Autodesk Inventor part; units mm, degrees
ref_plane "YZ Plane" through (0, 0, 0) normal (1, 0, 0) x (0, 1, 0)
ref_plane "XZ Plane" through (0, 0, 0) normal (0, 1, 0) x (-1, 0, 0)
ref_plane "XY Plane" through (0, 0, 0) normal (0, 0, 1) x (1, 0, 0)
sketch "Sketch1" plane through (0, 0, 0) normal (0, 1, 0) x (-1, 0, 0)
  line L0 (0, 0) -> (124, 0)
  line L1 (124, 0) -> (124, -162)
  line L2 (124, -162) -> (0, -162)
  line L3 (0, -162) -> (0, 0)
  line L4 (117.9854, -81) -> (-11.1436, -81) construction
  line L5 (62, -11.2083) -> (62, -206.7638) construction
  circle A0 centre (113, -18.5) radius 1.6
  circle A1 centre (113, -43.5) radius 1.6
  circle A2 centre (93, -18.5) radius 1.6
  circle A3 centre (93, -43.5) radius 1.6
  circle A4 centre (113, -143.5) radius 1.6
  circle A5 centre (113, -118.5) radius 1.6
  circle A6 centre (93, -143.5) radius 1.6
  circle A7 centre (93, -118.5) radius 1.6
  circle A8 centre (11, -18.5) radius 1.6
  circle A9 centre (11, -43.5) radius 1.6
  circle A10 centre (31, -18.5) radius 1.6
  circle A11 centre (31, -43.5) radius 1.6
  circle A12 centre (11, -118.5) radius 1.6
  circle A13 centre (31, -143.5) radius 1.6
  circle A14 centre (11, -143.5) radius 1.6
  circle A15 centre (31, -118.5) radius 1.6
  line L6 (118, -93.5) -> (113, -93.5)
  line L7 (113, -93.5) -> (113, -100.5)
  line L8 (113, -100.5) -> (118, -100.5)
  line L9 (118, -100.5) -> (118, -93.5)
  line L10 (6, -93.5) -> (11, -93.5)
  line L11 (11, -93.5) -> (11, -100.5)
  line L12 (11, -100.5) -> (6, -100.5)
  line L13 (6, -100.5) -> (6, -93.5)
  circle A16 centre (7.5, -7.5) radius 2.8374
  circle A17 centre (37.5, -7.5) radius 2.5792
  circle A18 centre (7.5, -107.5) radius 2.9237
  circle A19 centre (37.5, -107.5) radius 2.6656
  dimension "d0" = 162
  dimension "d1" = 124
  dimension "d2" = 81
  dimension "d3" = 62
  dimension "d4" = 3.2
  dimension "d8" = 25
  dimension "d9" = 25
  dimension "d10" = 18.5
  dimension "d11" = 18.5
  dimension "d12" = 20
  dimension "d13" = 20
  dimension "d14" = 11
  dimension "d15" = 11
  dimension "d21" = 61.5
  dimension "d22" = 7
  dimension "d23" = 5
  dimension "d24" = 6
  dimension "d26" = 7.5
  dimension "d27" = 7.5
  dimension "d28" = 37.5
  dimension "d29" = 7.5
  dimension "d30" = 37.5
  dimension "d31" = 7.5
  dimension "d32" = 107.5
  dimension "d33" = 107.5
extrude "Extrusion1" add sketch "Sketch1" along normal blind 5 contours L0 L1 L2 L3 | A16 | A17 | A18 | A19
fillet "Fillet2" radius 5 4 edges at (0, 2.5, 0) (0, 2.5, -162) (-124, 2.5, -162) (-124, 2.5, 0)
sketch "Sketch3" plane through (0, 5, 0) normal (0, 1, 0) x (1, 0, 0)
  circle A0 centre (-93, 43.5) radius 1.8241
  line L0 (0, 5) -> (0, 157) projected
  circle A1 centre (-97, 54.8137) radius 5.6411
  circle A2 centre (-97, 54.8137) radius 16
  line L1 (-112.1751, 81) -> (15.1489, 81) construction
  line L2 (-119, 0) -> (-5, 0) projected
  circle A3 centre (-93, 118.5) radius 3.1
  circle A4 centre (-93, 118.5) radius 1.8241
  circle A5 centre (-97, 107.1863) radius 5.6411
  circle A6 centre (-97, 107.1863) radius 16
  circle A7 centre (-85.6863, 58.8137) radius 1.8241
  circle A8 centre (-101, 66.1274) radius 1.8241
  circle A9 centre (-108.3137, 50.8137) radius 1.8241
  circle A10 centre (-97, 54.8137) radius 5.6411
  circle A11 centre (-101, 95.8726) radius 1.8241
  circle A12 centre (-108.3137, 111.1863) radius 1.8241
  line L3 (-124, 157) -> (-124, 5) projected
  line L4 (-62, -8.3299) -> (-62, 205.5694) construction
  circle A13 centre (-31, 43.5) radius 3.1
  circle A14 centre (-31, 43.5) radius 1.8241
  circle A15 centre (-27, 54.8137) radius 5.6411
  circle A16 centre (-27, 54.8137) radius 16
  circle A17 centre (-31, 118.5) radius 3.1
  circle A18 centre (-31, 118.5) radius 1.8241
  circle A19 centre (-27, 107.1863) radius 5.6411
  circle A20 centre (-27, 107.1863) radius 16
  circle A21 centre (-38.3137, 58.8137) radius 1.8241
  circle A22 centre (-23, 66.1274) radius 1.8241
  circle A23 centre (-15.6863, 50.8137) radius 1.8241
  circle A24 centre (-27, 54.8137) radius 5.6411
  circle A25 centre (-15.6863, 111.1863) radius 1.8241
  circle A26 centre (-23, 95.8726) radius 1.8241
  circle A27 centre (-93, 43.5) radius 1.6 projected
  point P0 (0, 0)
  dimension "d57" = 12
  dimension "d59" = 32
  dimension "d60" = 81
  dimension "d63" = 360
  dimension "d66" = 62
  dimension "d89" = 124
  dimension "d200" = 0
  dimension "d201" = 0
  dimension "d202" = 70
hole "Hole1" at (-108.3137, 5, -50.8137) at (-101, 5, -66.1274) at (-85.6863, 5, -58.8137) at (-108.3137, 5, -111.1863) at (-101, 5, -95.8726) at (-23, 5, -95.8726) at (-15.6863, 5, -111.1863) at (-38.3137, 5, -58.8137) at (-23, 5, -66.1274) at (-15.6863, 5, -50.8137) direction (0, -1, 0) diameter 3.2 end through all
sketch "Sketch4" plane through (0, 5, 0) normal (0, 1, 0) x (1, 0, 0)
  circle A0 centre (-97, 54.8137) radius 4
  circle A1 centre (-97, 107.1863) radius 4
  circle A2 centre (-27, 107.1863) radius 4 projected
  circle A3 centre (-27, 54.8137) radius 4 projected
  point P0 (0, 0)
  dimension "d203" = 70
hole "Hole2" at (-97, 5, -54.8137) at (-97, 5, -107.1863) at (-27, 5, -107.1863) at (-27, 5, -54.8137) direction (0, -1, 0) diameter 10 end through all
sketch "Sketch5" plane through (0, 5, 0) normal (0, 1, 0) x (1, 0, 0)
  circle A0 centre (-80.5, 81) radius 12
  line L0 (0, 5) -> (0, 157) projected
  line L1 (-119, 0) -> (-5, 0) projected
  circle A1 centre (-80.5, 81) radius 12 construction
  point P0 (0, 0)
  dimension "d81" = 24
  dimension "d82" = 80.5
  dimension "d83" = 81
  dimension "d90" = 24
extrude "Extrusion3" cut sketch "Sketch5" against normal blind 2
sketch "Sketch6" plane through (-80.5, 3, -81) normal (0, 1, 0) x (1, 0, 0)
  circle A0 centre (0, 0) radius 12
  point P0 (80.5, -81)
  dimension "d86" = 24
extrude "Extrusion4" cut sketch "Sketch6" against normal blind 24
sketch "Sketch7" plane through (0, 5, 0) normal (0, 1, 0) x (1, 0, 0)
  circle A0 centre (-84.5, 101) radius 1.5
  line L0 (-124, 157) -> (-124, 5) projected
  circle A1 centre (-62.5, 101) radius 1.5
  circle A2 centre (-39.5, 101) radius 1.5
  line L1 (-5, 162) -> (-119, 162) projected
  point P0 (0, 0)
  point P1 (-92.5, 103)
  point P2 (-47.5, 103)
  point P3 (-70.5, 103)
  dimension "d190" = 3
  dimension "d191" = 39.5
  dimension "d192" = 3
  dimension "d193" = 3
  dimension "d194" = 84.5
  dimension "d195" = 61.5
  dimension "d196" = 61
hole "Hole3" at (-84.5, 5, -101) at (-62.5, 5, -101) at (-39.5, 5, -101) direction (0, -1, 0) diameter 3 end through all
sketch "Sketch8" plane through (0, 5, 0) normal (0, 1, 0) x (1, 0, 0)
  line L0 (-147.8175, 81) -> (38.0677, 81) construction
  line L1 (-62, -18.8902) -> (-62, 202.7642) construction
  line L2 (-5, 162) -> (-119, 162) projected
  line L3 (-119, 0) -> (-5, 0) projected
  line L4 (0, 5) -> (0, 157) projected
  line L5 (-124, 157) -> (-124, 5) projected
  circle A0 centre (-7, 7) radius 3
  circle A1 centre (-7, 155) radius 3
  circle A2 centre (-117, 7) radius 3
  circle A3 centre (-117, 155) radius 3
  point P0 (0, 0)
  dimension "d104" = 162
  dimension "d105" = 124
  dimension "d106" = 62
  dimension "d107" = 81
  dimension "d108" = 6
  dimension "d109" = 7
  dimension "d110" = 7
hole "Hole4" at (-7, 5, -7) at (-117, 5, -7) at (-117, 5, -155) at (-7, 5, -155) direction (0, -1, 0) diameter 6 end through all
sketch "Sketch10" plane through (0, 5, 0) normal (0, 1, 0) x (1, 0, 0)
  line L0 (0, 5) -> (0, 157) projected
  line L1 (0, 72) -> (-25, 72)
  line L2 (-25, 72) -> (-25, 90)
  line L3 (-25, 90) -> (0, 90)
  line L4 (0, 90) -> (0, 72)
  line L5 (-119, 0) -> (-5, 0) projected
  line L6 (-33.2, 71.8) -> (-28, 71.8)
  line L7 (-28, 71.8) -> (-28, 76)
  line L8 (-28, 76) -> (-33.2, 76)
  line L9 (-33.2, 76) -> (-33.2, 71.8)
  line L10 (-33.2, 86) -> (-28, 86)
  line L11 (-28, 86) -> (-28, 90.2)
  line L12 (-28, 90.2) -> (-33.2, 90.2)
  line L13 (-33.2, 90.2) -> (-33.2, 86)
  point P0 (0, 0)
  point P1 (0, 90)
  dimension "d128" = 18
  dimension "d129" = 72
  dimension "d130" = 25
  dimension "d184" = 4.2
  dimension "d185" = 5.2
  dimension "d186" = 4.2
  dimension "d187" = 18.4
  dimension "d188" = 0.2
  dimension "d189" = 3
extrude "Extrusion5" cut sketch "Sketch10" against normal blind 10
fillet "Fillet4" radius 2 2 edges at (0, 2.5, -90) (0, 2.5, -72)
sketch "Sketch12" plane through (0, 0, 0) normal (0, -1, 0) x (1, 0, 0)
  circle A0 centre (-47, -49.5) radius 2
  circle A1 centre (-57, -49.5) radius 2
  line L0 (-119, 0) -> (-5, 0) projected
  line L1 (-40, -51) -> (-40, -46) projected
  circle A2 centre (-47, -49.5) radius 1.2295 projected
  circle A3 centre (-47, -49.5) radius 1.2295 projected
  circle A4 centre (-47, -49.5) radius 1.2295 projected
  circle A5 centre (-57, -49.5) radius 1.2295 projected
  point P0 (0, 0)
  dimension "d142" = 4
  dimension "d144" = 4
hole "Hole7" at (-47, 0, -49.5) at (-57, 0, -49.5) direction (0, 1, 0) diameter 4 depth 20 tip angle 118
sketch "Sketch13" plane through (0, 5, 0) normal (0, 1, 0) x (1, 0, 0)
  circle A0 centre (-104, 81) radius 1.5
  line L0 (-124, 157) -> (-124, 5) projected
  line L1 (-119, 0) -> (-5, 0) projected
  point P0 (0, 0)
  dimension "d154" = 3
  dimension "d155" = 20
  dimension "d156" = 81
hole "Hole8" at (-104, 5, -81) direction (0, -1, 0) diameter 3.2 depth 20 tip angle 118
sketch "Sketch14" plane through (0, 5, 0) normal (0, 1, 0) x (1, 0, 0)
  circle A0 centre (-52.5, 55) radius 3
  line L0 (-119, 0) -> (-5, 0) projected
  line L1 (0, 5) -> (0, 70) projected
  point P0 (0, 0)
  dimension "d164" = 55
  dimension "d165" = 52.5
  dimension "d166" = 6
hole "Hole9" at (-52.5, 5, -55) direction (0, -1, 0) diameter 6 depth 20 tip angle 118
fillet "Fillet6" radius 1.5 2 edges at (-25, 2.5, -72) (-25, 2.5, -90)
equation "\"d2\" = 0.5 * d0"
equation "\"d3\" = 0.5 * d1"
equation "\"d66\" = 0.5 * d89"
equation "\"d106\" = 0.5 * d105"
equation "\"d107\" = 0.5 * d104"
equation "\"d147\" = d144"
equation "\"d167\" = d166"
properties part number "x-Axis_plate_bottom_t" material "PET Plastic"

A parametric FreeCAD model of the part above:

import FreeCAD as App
import Part
import Sketcher
Q = App.Units.Quantity


def edges_at(feature, points):
    """Names of the edges that pass closest to the given points."""
    edges = feature.Shape.Edges
    near = lambda p: min(range(len(edges)), key=lambda i: edges[i].distToShape(Part.Vertex(*p))[0])
    return sorted({f"Edge{near(p) + 1}" for p in points})

doc = App.newDocument("Part")
params = doc.addObject("Spreadsheet::Sheet", "Params")
for row, (alias, value) in enumerate([
    ("sketch1_diameter", "3.2 mm"),
    ("sketch1_width", "124 mm"),
    ("sketch1_width2", "5 mm"),
    ("sketch1_height", "162 mm"),
    ("sketch1_height2", "7 mm"),
    ("pad1_length", "5 mm"),
    ("fillet_radius", "5 mm"),
    ("sketch2_diameter", "3.2 mm"),
    ("hole_diameter", "3.2 mm"),
    ("sketch3_diameter", "10 mm"),
    ("hole2_diameter", "10 mm"),
    ("sketch4_diameter", "24 mm"),
    ("pocket1_length", "2 mm"),
    ("sketch5_diameter", "24 mm"),
    ("pocket2_length", "24 mm"),
    ("sketch6_diameter", "3 mm"),
    ("hole3_diameter", "3 mm"),
    ("sketch7_diameter", "6 mm"),
    ("hole4_diameter", "6 mm"),
    ("sketch8_width", "25 mm"),
    ("sketch8_height", "18 mm"),
    ("sketch8_width2", "5.2 mm"),
    ("sketch8_height2", "4.2 mm"),
    ("pocket3_length", "10 mm"),
    ("fillet2_radius", "2 mm"),
    ("sketch9_diameter", "4 mm"),
    ("hole5_diameter", "4 mm"),
    ("hole5_depth", "20 mm"),
    ("sketch10_diameter", "3.2 mm"),
    ("hole6_diameter", "3.2 mm"),
    ("hole6_depth", "20 mm"),
    ("sketch11_diameter", "6 mm"),
    ("hole7_diameter", "6 mm"),
    ("hole7_depth", "20 mm"),
    ("fillet3_radius", "1.5 mm"),
], start=1):
    params.set(f"A{row}", alias)
    params.set(f"B{row}", "=" + value)
    params.setAlias(f"B{row}", alias)

body = doc.addObject("PartDesign::Body", "Body")

# Sketch on XZ plane
sketch1 = body.newObject("Sketcher::SketchObject", "Sketch")
sketch1.AttachmentSupport = (doc.getObject("XZ_Plane"), [""])
sketch1.MapMode = "FlatFace"
sketch1.addGeometry([
    Part.LineSegment(App.Vector(-124, 0, 0), App.Vector(0, 0, 0)),  # 0
    Part.LineSegment(App.Vector(0, 0, 0), App.Vector(0, -162, 0)),  # 1
    Part.LineSegment(App.Vector(0, -162, 0), App.Vector(-124, -162, 0)),  # 2
    Part.LineSegment(App.Vector(-124, -162, 0), App.Vector(-124, 0, 0)),  # 3
    Part.Circle(App.Vector(-11, -143.5, 0), App.Vector(0, 0, 1), 1.6),  # 4
    Part.Circle(App.Vector(-31, -143.5, 0), App.Vector(0, 0, 1), 1.6),  # 5
    Part.Circle(App.Vector(-11, -118.5, 0), App.Vector(0, 0, 1), 1.6),  # 6
    Part.LineSegment(App.Vector(-6, -100.5, 0), App.Vector(-6, -93.5, 0)),  # 7
    Part.LineSegment(App.Vector(-6, -93.5, 0), App.Vector(-11, -93.5, 0)),  # 8
    Part.LineSegment(App.Vector(-11, -93.5, 0), App.Vector(-11, -100.5, 0)),  # 9
    Part.LineSegment(App.Vector(-11, -100.5, 0), App.Vector(-6, -100.5, 0)),  # 10
    Part.Circle(App.Vector(-31, -118.5, 0), App.Vector(0, 0, 1), 1.6),  # 11
    Part.Circle(App.Vector(-93, -143.5, 0), App.Vector(0, 0, 1), 1.6),  # 12
    Part.Circle(App.Vector(-113, -143.5, 0), App.Vector(0, 0, 1), 1.6),  # 13
    Part.Circle(App.Vector(-93, -118.5, 0), App.Vector(0, 0, 1), 1.6),  # 14
    Part.Circle(App.Vector(-113, -118.5, 0), App.Vector(0, 0, 1), 1.6),  # 15
    Part.LineSegment(App.Vector(-113, -93.5, 0), App.Vector(-118, -93.5, 0)),  # 16
    Part.LineSegment(App.Vector(-118, -93.5, 0), App.Vector(-118, -100.5, 0)),  # 17
    Part.LineSegment(App.Vector(-118, -100.5, 0), App.Vector(-113, -100.5, 0)),  # 18
    Part.LineSegment(App.Vector(-113, -100.5, 0), App.Vector(-113, -93.5, 0)),  # 19
    Part.Circle(App.Vector(-11, -43.5, 0), App.Vector(0, 0, 1), 1.6),  # 20
    Part.Circle(App.Vector(-31, -43.5, 0), App.Vector(0, 0, 1), 1.6),  # 21
    Part.Circle(App.Vector(-11, -18.5, 0), App.Vector(0, 0, 1), 1.6),  # 22
    Part.Circle(App.Vector(-31, -18.5, 0), App.Vector(0, 0, 1), 1.6),  # 23
    Part.Circle(App.Vector(-93, -43.5, 0), App.Vector(0, 0, 1), 1.6),  # 24
    Part.Circle(App.Vector(-113, -43.5, 0), App.Vector(0, 0, 1), 1.6),  # 25
    Part.Circle(App.Vector(-93, -18.5, 0), App.Vector(0, 0, 1), 1.6),  # 26
    Part.Circle(App.Vector(-113, -18.5, 0), App.Vector(0, 0, 1), 1.6),  # 27
], False)
sketch1.addConstraint([
    Sketcher.Constraint("Coincident", 0, 2, 1, 1),
    Sketcher.Constraint("Coincident", 1, 2, 2, 1),
    Sketcher.Constraint("Coincident", 2, 2, 3, 1),
    Sketcher.Constraint("Coincident", 3, 2, 0, 1),
    Sketcher.Constraint("Coincident", 7, 2, 8, 1),
    Sketcher.Constraint("Coincident", 8, 2, 9, 1),
    Sketcher.Constraint("Coincident", 9, 2, 10, 1),
    Sketcher.Constraint("Coincident", 10, 2, 7, 1),
    Sketcher.Constraint("Coincident", 16, 2, 17, 1),
    Sketcher.Constraint("Coincident", 17, 2, 18, 1),
    Sketcher.Constraint("Coincident", 18, 2, 19, 1),
    Sketcher.Constraint("Coincident", 19, 2, 16, 1),
    Sketcher.Constraint("Horizontal", 0),
    Sketcher.Constraint("Vertical", 1),
    Sketcher.Constraint("Horizontal", 2),
    Sketcher.Constraint("Vertical", 3),
    Sketcher.Constraint("Vertical", 7),
    Sketcher.Constraint("Horizontal", 8),
    Sketcher.Constraint("Vertical", 9),
    Sketcher.Constraint("Horizontal", 10),
    Sketcher.Constraint("Horizontal", 16),
    Sketcher.Constraint("Vertical", 17),
    Sketcher.Constraint("Horizontal", 18),
    Sketcher.Constraint("Vertical", 19),
    Sketcher.Constraint("Coincident", 0, 2, -1, 1),
    Sketcher.Constraint("Equal", 4, 5),
    Sketcher.Constraint("Equal", 5, 6),
    Sketcher.Constraint("Equal", 6, 11),
    Sketcher.Constraint("Equal", 11, 12),
    Sketcher.Constraint("Equal", 12, 13),
    Sketcher.Constraint("Equal", 13, 14),
    Sketcher.Constraint("Equal", 14, 15),
    Sketcher.Constraint("Equal", 15, 20),
    Sketcher.Constraint("Equal", 20, 21),
    Sketcher.Constraint("Equal", 21, 22),
    Sketcher.Constraint("Equal", 22, 23),
    Sketcher.Constraint("Equal", 23, 24),
    Sketcher.Constraint("Equal", 24, 25),
    Sketcher.Constraint("Equal", 25, 26),
    Sketcher.Constraint("Equal", 26, 27),
    Sketcher.Constraint("Horizontal", 4, 3, 5, 3),
    Sketcher.Constraint("Horizontal", 6, 3, 11, 3),
    Sketcher.Constraint("Horizontal", 5, 3, 12, 3),
    Sketcher.Constraint("Horizontal", 12, 3, 13, 3),
    Sketcher.Constraint("Horizontal", 11, 3, 14, 3),
    Sketcher.Constraint("Horizontal", 14, 3, 15, 3),
    Sketcher.Constraint("Horizontal", 20, 3, 21, 3),
    Sketcher.Constraint("Horizontal", 22, 3, 23, 3),
    Sketcher.Constraint("Horizontal", 21, 3, 24, 3),
    Sketcher.Constraint("Horizontal", 24, 3, 25, 3),
    Sketcher.Constraint("Horizontal", 23, 3, 26, 3),
    Sketcher.Constraint("Horizontal", 26, 3, 27, 3),
    Sketcher.Constraint("Horizontal", 8, 2, 16, 2),
    Sketcher.Constraint("Horizontal", 10, 2, 17, 2),
    Sketcher.Constraint("Vertical", 4, 3, 6, 3),
    Sketcher.Constraint("Vertical", 5, 3, 11, 3),
    Sketcher.Constraint("Vertical", 12, 3, 14, 3),
    Sketcher.Constraint("Vertical", 13, 3, 15, 3),
    Sketcher.Constraint("Vertical", 6, 3, 20, 3),
    Sketcher.Constraint("Vertical", 11, 3, 21, 3),
    Sketcher.Constraint("Vertical", 20, 3, 22, 3),
    Sketcher.Constraint("Vertical", 21, 3, 23, 3),
    Sketcher.Constraint("Vertical", 14, 3, 24, 3),
    Sketcher.Constraint("Vertical", 15, 3, 25, 3),
    Sketcher.Constraint("Vertical", 24, 3, 26, 3),
    Sketcher.Constraint("Vertical", 25, 3, 27, 3),
    Sketcher.Constraint("Vertical", 22, 3, 8, 2),
    Sketcher.Constraint("Vertical", 27, 3, 18, 2),
    Sketcher.Constraint("Equal", 10, 16),
    Sketcher.Constraint("Diameter", 4, Q("3.2 mm")),
    Sketcher.Constraint("DistanceX", 0, 1, 0, 2, Q("124 mm")),
    Sketcher.Constraint("DistanceX", 8, 2, 8, 1, Q("5 mm")),
    Sketcher.Constraint("DistanceY", 1, 2, 1, 1, Q("162 mm")),
    Sketcher.Constraint("DistanceY", 7, 1, 7, 2, Q("7 mm")),
    Sketcher.Constraint("DistanceX", 4, 3, -1, 1, Q("11 mm")),
    Sketcher.Constraint("DistanceX", 5, 3, 4, 3, Q("20 mm")),
    Sketcher.Constraint("DistanceY", 4, 3, 6, 3, Q("25 mm")),
    Sketcher.Constraint("DistanceX", 12, 3, 5, 3, Q("62 mm")),
    Sketcher.Constraint("DistanceX", 13, 3, 12, 3, Q("20 mm")),
    Sketcher.Constraint("DistanceY", 20, 3, 22, 3, Q("25 mm")),
    Sketcher.Constraint("DistanceY", 6, 3, 7, 2, Q("25 mm")),
    Sketcher.Constraint("DistanceY", 22, 3, -1, 1, Q("18.5 mm")),
    Sketcher.Constraint("DistanceY", 1, 2, 4, 3, Q("18.5 mm")),
])
sketch1.setExpression("Constraints[69]", "Params.sketch1_diameter")
sketch1.setExpression("Constraints[70]", "Params.sketch1_width")
sketch1.setExpression("Constraints[71]", "Params.sketch1_width2")
sketch1.setExpression("Constraints[72]", "Params.sketch1_height")
sketch1.setExpression("Constraints[73]", "Params.sketch1_height2")
pad1 = body.newObject("PartDesign::Pad", "Pad")
pad1.Profile = sketch1
pad1.setExpression("Length", "Params.pad1_length")
pad1.Reversed = True
doc.recompute()

fillet = body.newObject("PartDesign::Fillet", "Fillet")
fillet.Base = (pad1, edges_at(pad1, [
    (0, 2.5, 0),
    (0, 2.5, -162),
    (-124, 2.5, -162),
    (-124, 2.5, 0),
]))
fillet.setExpression("Radius", "Params.fillet_radius")

# Sketch on XZ plane
sketch2 = body.newObject("Sketcher::SketchObject", "Sketch001")
sketch2.AttachmentSupport = (doc.getObject("XZ_Plane"), [""])
sketch2.MapMode = "FlatFace"
sketch2.AttachmentOffset = App.Placement(App.Vector(0, 0, -5), App.Rotation())
sketch2.addGeometry([
    Part.Circle(App.Vector(-108.3137, -50.8137, 0), App.Vector(0, 0, 1), 1.6),  # 0
    Part.Circle(App.Vector(-101, -66.1274, 0), App.Vector(0, 0, 1), 1.6),  # 1
    Part.Circle(App.Vector(-85.6863, -58.8137, 0), App.Vector(0, 0, 1), 1.6),  # 2
    Part.Circle(App.Vector(-108.3137, -111.1863, 0), App.Vector(0, 0, 1), 1.6),  # 3
    Part.Circle(App.Vector(-101, -95.8726, 0), App.Vector(0, 0, 1), 1.6),  # 4
    Part.Circle(App.Vector(-23, -95.8726, 0), App.Vector(0, 0, 1), 1.6),  # 5
    Part.Circle(App.Vector(-15.6863, -111.1863, 0), App.Vector(0, 0, 1), 1.6),  # 6
    Part.Circle(App.Vector(-38.3137, -58.8137, 0), App.Vector(0, 0, 1), 1.6),  # 7
    Part.Circle(App.Vector(-23, -66.1274, 0), App.Vector(0, 0, 1), 1.6),  # 8
    Part.Circle(App.Vector(-15.6863, -50.8137, 0), App.Vector(0, 0, 1), 1.6),  # 9
], False)
sketch2.addConstraint([
    Sketcher.Constraint("Equal", 0, 1),
    Sketcher.Constraint("Equal", 1, 2),
    Sketcher.Constraint("Equal", 2, 3),
    Sketcher.Constraint("Equal", 3, 4),
    Sketcher.Constraint("Equal", 4, 5),
    Sketcher.Constraint("Equal", 5, 6),
    Sketcher.Constraint("Equal", 6, 7),
    Sketcher.Constraint("Equal", 7, 8),
    Sketcher.Constraint("Equal", 8, 9),
    Sketcher.Constraint("Horizontal", 4, 3, 5, 3),
    Sketcher.Constraint("Horizontal", 3, 3, 6, 3),
    Sketcher.Constraint("Horizontal", 2, 3, 7, 3),
    Sketcher.Constraint("Horizontal", 1, 3, 8, 3),
    Sketcher.Constraint("Horizontal", 0, 3, 9, 3),
    Sketcher.Constraint("Vertical", 0, 3, 3, 3),
    Sketcher.Constraint("Vertical", 1, 3, 4, 3),
    Sketcher.Constraint("Vertical", 5, 3, 8, 3),
    Sketcher.Constraint("Vertical", 6, 3, 9, 3),
    Sketcher.Constraint("Diameter", 0, Q("3.2 mm")),
    Sketcher.Constraint("DistanceX", 1, 3, -1, 1, Q("101 mm")),
    Sketcher.Constraint("DistanceX", 5, 3, -1, 1, Q("23 mm")),
    Sketcher.Constraint("DistanceY", 2, 3, 0, 3, Q("8 mm")),
    Sketcher.Constraint("DistanceX", 2, 3, 6, 3, Q("70 mm")),
    Sketcher.Constraint("DistanceX", 0, 3, 7, 3, Q("70 mm")),
    Sketcher.Constraint("DistanceY", 3, 3, 1, 3, Q("45.059 mm")),
    Sketcher.Constraint("DistanceY", 4, 3, 2, 3, Q("37.059 mm")),
    Sketcher.Constraint("DistanceX", 0, 3, -1, 1, Q("108.3137 mm")),
    Sketcher.Constraint("DistanceY", 0, 3, -1, 1, Q("50.8137 mm")),
    Sketcher.Constraint("DistanceY", 1, 3, -1, 1, Q("66.1274 mm")),
    Sketcher.Constraint("DistanceX", 2, 3, -1, 1, Q("85.6863 mm")),
])
sketch2.setExpression("Constraints[18]", "Params.sketch2_diameter")
doc.recompute()
hole = body.newObject("PartDesign::Hole", "Hole")
hole.Profile = sketch2
hole.ThreadType = "None"
hole.setExpression("Diameter", "Params.hole_diameter")
hole.DepthType = "ThroughAll"
hole.Reversed = True

# Sketch on XZ plane
sketch3 = body.newObject("Sketcher::SketchObject", "Sketch002")
sketch3.AttachmentSupport = (doc.getObject("XZ_Plane"), [""])
sketch3.MapMode = "FlatFace"
sketch3.AttachmentOffset = App.Placement(App.Vector(0, 0, -5), App.Rotation())
sketch3.addGeometry([
    Part.Circle(App.Vector(-97, -54.8137, 0), App.Vector(0, 0, 1), 5),
    Part.Circle(App.Vector(-97, -107.1863, 0), App.Vector(0, 0, 1), 5),
    Part.Circle(App.Vector(-27, -107.1863, 0), App.Vector(0, 0, 1), 5),
    Part.Circle(App.Vector(-27, -54.8137, 0), App.Vector(0, 0, 1), 5),
], False)
sketch3.addConstraint([
    Sketcher.Constraint("Equal", 0, 1),
    Sketcher.Constraint("Equal", 1, 2),
    Sketcher.Constraint("Equal", 2, 3),
    Sketcher.Constraint("Horizontal", 1, 3, 2, 3),
    Sketcher.Constraint("Horizontal", 0, 3, 3, 3),
    Sketcher.Constraint("Vertical", 0, 3, 1, 3),
    Sketcher.Constraint("Vertical", 2, 3, 3, 3),
    Sketcher.Constraint("Diameter", 0, Q("10 mm")),
    Sketcher.Constraint("DistanceX", 0, 3, -1, 1, Q("97 mm")),
    Sketcher.Constraint("DistanceX", 2, 3, -1, 1, Q("27 mm")),
    Sketcher.Constraint("DistanceY", 0, 3, -1, 1, Q("54.8137 mm")),
    Sketcher.Constraint("DistanceY", 1, 3, -1, 1, Q("107.1863 mm")),
])
sketch3.setExpression("Constraints[7]", "Params.sketch3_diameter")
doc.recompute()
hole2 = body.newObject("PartDesign::Hole", "Hole001")
hole2.Profile = sketch3
hole2.ThreadType = "None"
hole2.setExpression("Diameter", "Params.hole2_diameter")
hole2.DepthType = "ThroughAll"
hole2.Reversed = True

# Sketch on XZ plane
sketch4 = body.newObject("Sketcher::SketchObject", "Sketch003")
sketch4.AttachmentSupport = (doc.getObject("XZ_Plane"), [""])
sketch4.MapMode = "FlatFace"
sketch4.AttachmentOffset = App.Placement(App.Vector(0, 0, -5), App.Rotation())
sketch4.addGeometry(Part.Circle(App.Vector(-80.5, -81, 0), App.Vector(0, 0, 1), 12), False)
sketch4.addConstraint([
    Sketcher.Constraint("Diameter", 0, Q("24 mm")),
    Sketcher.Constraint("DistanceY", 0, 3, -1, 1, Q("81 mm")),
    Sketcher.Constraint("DistanceX", 0, 3, -1, 1, Q("80.5 mm")),
])
sketch4.setExpression("Constraints[0]", "Params.sketch4_diameter")
pocket1 = body.newObject("PartDesign::Pocket", "Pocket")
pocket1.Profile = sketch4
pocket1.setExpression("Length", "Params.pocket1_length")
pocket1.Reversed = True

# Sketch on XZ plane
sketch5 = body.newObject("Sketcher::SketchObject", "Sketch004")
sketch5.AttachmentSupport = (doc.getObject("XZ_Plane"), [""])
sketch5.MapMode = "FlatFace"
sketch5.AttachmentOffset = App.Placement(App.Vector(0, 0, -3), App.Rotation())
sketch5.addGeometry(Part.Circle(App.Vector(-80.5, -81, 0), App.Vector(0, 0, 1), 12), False)
sketch5.addConstraint([
    Sketcher.Constraint("Diameter", 0, Q("24 mm")),
    Sketcher.Constraint("DistanceY", 0, 3, -1, 1, Q("81 mm")),
    Sketcher.Constraint("DistanceX", 0, 3, -1, 1, Q("80.5 mm")),
])
sketch5.setExpression("Constraints[0]", "Params.sketch5_diameter")
pocket2 = body.newObject("PartDesign::Pocket", "Pocket001")
pocket2.Profile = sketch5
pocket2.setExpression("Length", "Params.pocket2_length")
pocket2.Reversed = True

# Sketch on XZ plane
sketch6 = body.newObject("Sketcher::SketchObject", "Sketch005")
sketch6.AttachmentSupport = (doc.getObject("XZ_Plane"), [""])
sketch6.MapMode = "FlatFace"
sketch6.AttachmentOffset = App.Placement(App.Vector(0, 0, -5), App.Rotation())
sketch6.addGeometry([
    Part.Circle(App.Vector(-84.5, -101, 0), App.Vector(0, 0, 1), 1.5),
    Part.Circle(App.Vector(-62.5, -101, 0), App.Vector(0, 0, 1), 1.5),
    Part.Circle(App.Vector(-39.5, -101, 0), App.Vector(0, 0, 1), 1.5),
], False)
sketch6.addConstraint([
    Sketcher.Constraint("Equal", 0, 1),
    Sketcher.Constraint("Equal", 1, 2),
    Sketcher.Constraint("Horizontal", 0, 3, 1, 3),
    Sketcher.Constraint("Horizontal", 1, 3, 2, 3),
    Sketcher.Constraint("Diameter", 0, Q("3 mm")),
    Sketcher.Constraint("DistanceY", 0, 3, -1, 1, Q("101 mm")),
    Sketcher.Constraint("DistanceX", 0, 3, 1, 3, Q("22 mm")),
    Sketcher.Constraint("DistanceX", 1, 3, 2, 3, Q("23 mm")),
    Sketcher.Constraint("DistanceX", 0, 3, -1, 1, Q("84.5 mm")),
])
sketch6.setExpression("Constraints[4]", "Params.sketch6_diameter")
doc.recompute()
hole3 = body.newObject("PartDesign::Hole", "Hole002")
hole3.Profile = sketch6
hole3.ThreadType = "None"
hole3.setExpression("Diameter", "Params.hole3_diameter")
hole3.DepthType = "ThroughAll"
hole3.Reversed = True

# Sketch on XZ plane
sketch7 = body.newObject("Sketcher::SketchObject", "Sketch006")
sketch7.AttachmentSupport = (doc.getObject("XZ_Plane"), [""])
sketch7.MapMode = "FlatFace"
sketch7.AttachmentOffset = App.Placement(App.Vector(0, 0, -5), App.Rotation())
sketch7.addGeometry([
    Part.Circle(App.Vector(-7, -7, 0), App.Vector(0, 0, 1), 3),
    Part.Circle(App.Vector(-117, -7, 0), App.Vector(0, 0, 1), 3),
    Part.Circle(App.Vector(-117, -155, 0), App.Vector(0, 0, 1), 3),
    Part.Circle(App.Vector(-7, -155, 0), App.Vector(0, 0, 1), 3),
], False)
sketch7.addConstraint([
    Sketcher.Constraint("Equal", 0, 1),
    Sketcher.Constraint("Equal", 1, 2),
    Sketcher.Constraint("Equal", 2, 3),
    Sketcher.Constraint("Horizontal", 0, 3, 1, 3),
    Sketcher.Constraint("Horizontal", 2, 3, 3, 3),
    Sketcher.Constraint("Vertical", 1, 3, 2, 3),
    Sketcher.Constraint("Vertical", 0, 3, 3, 3),
    Sketcher.Constraint("Diameter", 0, Q("6 mm")),
    Sketcher.Constraint("DistanceX", 0, 3, -1, 1, Q("7 mm")),
    Sketcher.Constraint("DistanceY", 0, 3, -1, 1, Q("7 mm")),
    Sketcher.Constraint("DistanceX", 1, 3, -1, 1, Q("117 mm")),
    Sketcher.Constraint("DistanceY", 2, 3, -1, 1, Q("155 mm")),
])
sketch7.setExpression("Constraints[7]", "Params.sketch7_diameter")
doc.recompute()
hole4 = body.newObject("PartDesign::Hole", "Hole003")
hole4.Profile = sketch7
hole4.ThreadType = "None"
hole4.setExpression("Diameter", "Params.hole4_diameter")
hole4.DepthType = "ThroughAll"
hole4.Reversed = True

# Sketch on XZ plane
sketch8 = body.newObject("Sketcher::SketchObject", "Sketch007")
sketch8.AttachmentSupport = (doc.getObject("XZ_Plane"), [""])
sketch8.MapMode = "FlatFace"
sketch8.AttachmentOffset = App.Placement(App.Vector(0, 0, -5), App.Rotation())
sketch8.addGeometry([
    Part.LineSegment(App.Vector(-25, -72, 0), App.Vector(0, -72, 0)),  # 0
    Part.LineSegment(App.Vector(0, -72, 0), App.Vector(0, -90, 0)),  # 1
    Part.LineSegment(App.Vector(0, -90, 0), App.Vector(-25, -90, 0)),  # 2
    Part.LineSegment(App.Vector(-25, -90, 0), App.Vector(-25, -72, 0)),  # 3
    Part.LineSegment(App.Vector(-33.2, -76, 0), App.Vector(-33.2, -71.8, 0)),  # 4
    Part.LineSegment(App.Vector(-33.2, -71.8, 0), App.Vector(-28, -71.8, 0)),  # 5
    Part.LineSegment(App.Vector(-28, -71.8, 0), App.Vector(-28, -76, 0)),  # 6
    Part.LineSegment(App.Vector(-28, -76, 0), App.Vector(-33.2, -76, 0)),  # 7
    Part.LineSegment(App.Vector(-33.2, -90.2, 0), App.Vector(-33.2, -86, 0)),  # 8
    Part.LineSegment(App.Vector(-33.2, -86, 0), App.Vector(-28, -86, 0)),  # 9
    Part.LineSegment(App.Vector(-28, -86, 0), App.Vector(-28, -90.2, 0)),  # 10
    Part.LineSegment(App.Vector(-28, -90.2, 0), App.Vector(-33.2, -90.2, 0)),  # 11
], False)
sketch8.addConstraint([
    Sketcher.Constraint("Coincident", 0, 2, 1, 1),
    Sketcher.Constraint("Coincident", 1, 2, 2, 1),
    Sketcher.Constraint("Coincident", 2, 2, 3, 1),
    Sketcher.Constraint("Coincident", 3, 2, 0, 1),
    Sketcher.Constraint("Coincident", 4, 2, 5, 1),
    Sketcher.Constraint("Coincident", 5, 2, 6, 1),
    Sketcher.Constraint("Coincident", 6, 2, 7, 1),
    Sketcher.Constraint("Coincident", 7, 2, 4, 1),
    Sketcher.Constraint("Coincident", 8, 2, 9, 1),
    Sketcher.Constraint("Coincident", 9, 2, 10, 1),
    Sketcher.Constraint("Coincident", 10, 2, 11, 1),
    Sketcher.Constraint("Coincident", 11, 2, 8, 1),
    Sketcher.Constraint("Horizontal", 0),
    Sketcher.Constraint("Vertical", 1),
    Sketcher.Constraint("Horizontal", 2),
    Sketcher.Constraint("Vertical", 3),
    Sketcher.Constraint("Vertical", 4),
    Sketcher.Constraint("Horizontal", 5),
    Sketcher.Constraint("Vertical", 6),
    Sketcher.Constraint("Horizontal", 7),
    Sketcher.Constraint("Vertical", 8),
    Sketcher.Constraint("Horizontal", 9),
    Sketcher.Constraint("Vertical", 10),
    Sketcher.Constraint("Horizontal", 11),
    Sketcher.Constraint("PointOnObject", 0, 2, -2),
    Sketcher.Constraint("Vertical", 7, 2, 8, 2),
    Sketcher.Constraint("Vertical", 6, 2, 9, 2),
    Sketcher.Constraint("Equal", 6, 8),
    Sketcher.Constraint("DistanceX", 0, 1, 0, 2, Q("25 mm")),
    Sketcher.Constraint("DistanceY", 1, 2, 1, 1, Q("18 mm")),
    Sketcher.Constraint("DistanceX", 5, 1, 5, 2, Q("5.2 mm")),
    Sketcher.Constraint("DistanceY", 4, 1, 4, 2, Q("4.2 mm")),
    Sketcher.Constraint("DistanceY", 0, 2, -1, 1, Q("72 mm")),
    Sketcher.Constraint("DistanceX", 5, 2, 3, 2, Q("3 mm")),
    Sketcher.Constraint("DistanceY", 3, 2, 4, 2, Q("0.2 mm")),
    Sketcher.Constraint("DistanceY", 10, 2, 2, 2, Q("0.2 mm")),
])
sketch8.setExpression("Constraints[28]", "Params.sketch8_width")
sketch8.setExpression("Constraints[29]", "Params.sketch8_height")
sketch8.setExpression("Constraints[30]", "Params.sketch8_width2")
sketch8.setExpression("Constraints[31]", "Params.sketch8_height2")
pocket3 = body.newObject("PartDesign::Pocket", "Pocket002")
pocket3.Profile = sketch8
pocket3.setExpression("Length", "Params.pocket3_length")
pocket3.Reversed = True
doc.recompute()

fillet2 = body.newObject("PartDesign::Fillet", "Fillet001")
fillet2.Base = (pocket3, edges_at(pocket3, [(0, 2.5, -90), (0, 2.5, -72)]))
fillet2.setExpression("Radius", "Params.fillet2_radius")

# Sketch on XZ plane
sketch9 = body.newObject("Sketcher::SketchObject", "Sketch008")
sketch9.AttachmentSupport = (doc.getObject("XZ_Plane"), [""])
sketch9.MapMode = "FlatFace"
sketch9.addGeometry([
    Part.Circle(App.Vector(-47, -49.5, 0), App.Vector(0, 0, 1), 2),
    Part.Circle(App.Vector(-57, -49.5, 0), App.Vector(0, 0, 1), 2),
], False)
sketch9.addConstraint([
    Sketcher.Constraint("Equal", 0, 1),
    Sketcher.Constraint("Horizontal", 0, 3, 1, 3),
    Sketcher.Constraint("Diameter", 0, Q("4 mm")),
    Sketcher.Constraint("DistanceX", 0, 3, -1, 1, Q("47 mm")),
    Sketcher.Constraint("DistanceX", 1, 3, -1, 1, Q("57 mm")),
    Sketcher.Constraint("DistanceY", 0, 3, -1, 1, Q("49.5 mm")),
])
sketch9.setExpression("Constraints[2]", "Params.sketch9_diameter")
doc.recompute()
hole5 = body.newObject("PartDesign::Hole", "Hole004")
hole5.Profile = sketch9
hole5.ThreadType = "None"
hole5.setExpression("Diameter", "Params.hole5_diameter")
hole5.DepthType = "Dimension"
hole5.setExpression("Depth", "Params.hole5_depth")
hole5.DrillPoint = "Angled"
hole5.DrillPointAngle = 118

# Sketch on XZ plane
sketch10 = body.newObject("Sketcher::SketchObject", "Sketch009")
sketch10.AttachmentSupport = (doc.getObject("XZ_Plane"), [""])
sketch10.MapMode = "FlatFace"
sketch10.AttachmentOffset = App.Placement(App.Vector(0, 0, -5), App.Rotation())
sketch10.addGeometry(Part.Circle(App.Vector(-104, -81, 0), App.Vector(0, 0, 1), 1.6), False)
sketch10.addConstraint([
    Sketcher.Constraint("Diameter", 0, Q("3.2 mm")),
    Sketcher.Constraint("DistanceX", 0, 3, -1, 1, Q("104 mm")),
    Sketcher.Constraint("DistanceY", 0, 3, -1, 1, Q("81 mm")),
])
sketch10.setExpression("Constraints[0]", "Params.sketch10_diameter")
doc.recompute()
hole6 = body.newObject("PartDesign::Hole", "Hole005")
hole6.Profile = sketch10
hole6.ThreadType = "None"
hole6.setExpression("Diameter", "Params.hole6_diameter")
hole6.DepthType = "Dimension"
hole6.setExpression("Depth", "Params.hole6_depth")
hole6.DrillPoint = "Angled"
hole6.DrillPointAngle = 118
hole6.Reversed = True

# Sketch on XZ plane
sketch11 = body.newObject("Sketcher::SketchObject", "Sketch010")
sketch11.AttachmentSupport = (doc.getObject("XZ_Plane"), [""])
sketch11.MapMode = "FlatFace"
sketch11.AttachmentOffset = App.Placement(App.Vector(0, 0, -5), App.Rotation())
sketch11.addGeometry(Part.Circle(App.Vector(-52.5, -55, 0), App.Vector(0, 0, 1), 3), False)
sketch11.addConstraint([
    Sketcher.Constraint("Diameter", 0, Q("6 mm")),
    Sketcher.Constraint("DistanceY", 0, 3, -1, 1, Q("55 mm")),
    Sketcher.Constraint("DistanceX", 0, 3, -1, 1, Q("52.5 mm")),
])
sketch11.setExpression("Constraints[0]", "Params.sketch11_diameter")
doc.recompute()
hole7 = body.newObject("PartDesign::Hole", "Hole006")
hole7.Profile = sketch11
hole7.ThreadType = "None"
hole7.setExpression("Diameter", "Params.hole7_diameter")
hole7.DepthType = "Dimension"
hole7.setExpression("Depth", "Params.hole7_depth")
hole7.DrillPoint = "Angled"
hole7.DrillPointAngle = 118
hole7.Reversed = True
doc.recompute()

fillet3 = body.newObject("PartDesign::Fillet", "Fillet002")
fillet3.Base = (hole7, edges_at(hole7, [(-25, 2.5, -72), (-25, 2.5, -90)]))
fillet3.setExpression("Radius", "Params.fillet3_radius")

doc.recompute()
